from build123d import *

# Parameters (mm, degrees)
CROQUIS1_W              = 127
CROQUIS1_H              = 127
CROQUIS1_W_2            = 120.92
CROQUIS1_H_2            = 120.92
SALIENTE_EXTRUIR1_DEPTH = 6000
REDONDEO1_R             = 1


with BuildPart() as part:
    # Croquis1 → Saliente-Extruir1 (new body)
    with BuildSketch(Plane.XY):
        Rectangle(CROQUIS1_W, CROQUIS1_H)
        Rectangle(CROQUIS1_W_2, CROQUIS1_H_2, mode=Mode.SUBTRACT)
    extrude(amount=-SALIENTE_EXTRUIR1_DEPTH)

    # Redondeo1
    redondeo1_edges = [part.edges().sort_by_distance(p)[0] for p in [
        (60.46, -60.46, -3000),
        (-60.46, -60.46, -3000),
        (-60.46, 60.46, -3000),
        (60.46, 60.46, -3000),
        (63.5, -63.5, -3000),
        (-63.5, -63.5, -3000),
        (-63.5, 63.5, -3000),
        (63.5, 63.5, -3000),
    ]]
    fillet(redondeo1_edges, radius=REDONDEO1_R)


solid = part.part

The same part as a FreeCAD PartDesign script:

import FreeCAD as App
import Part
import Sketcher

V = App.Vector


def edges_at(feature, points):
    """Names of the edges that pass closest to the given points."""
    edges = feature.Shape.Edges
    near = lambda p: min(range(len(edges)), key=lambda i: edges[i].distToShape(Part.Vertex(*p))[0])
    return sorted({f"Edge{near(p) + 1}" for p in points})

doc = App.newDocument("Part")
body = doc.addObject("PartDesign::Body", "Body")

# Sketch on XY plane
sketch1 = body.newObject("Sketcher::SketchObject", "Sketch")
sketch1.AttachmentSupport = (doc.getObject("XY_Plane"), [""])
sketch1.MapMode = "FlatFace"
sketch1.addGeometry([
    Part.LineSegment(V(-64, 64, 0), V(-64, -64, 0)),  # 0
    Part.LineSegment(V(-64, -64, 0), V(64, -64, 0)),  # 1
    Part.LineSegment(V(64, -64, 0), V(64, 64, 0)),  # 2
    Part.LineSegment(V(64, 64, 0), V(-64, 64, 0)),  # 3
    Part.LineSegment(V(60, -60, 0), V(-60, -60, 0)),  # 4
    Part.LineSegment(V(-60, -60, 0), V(-60, 60, 0)),  # 5
    Part.LineSegment(V(-60, 60, 0), V(60, 60, 0)),  # 6
    Part.LineSegment(V(60, 60, 0), V(60, -60, 0)),  # 7
], False)
sketch1.addConstraint([
    Sketcher.Constraint("Coincident", 0, 2, 1, 1),
    Sketcher.Constraint("Coincident", 1, 2, 2, 1),
    Sketcher.Constraint("Coincident", 2, 2, 3, 1),
    Sketcher.Constraint("Coincident", 3, 2, 0, 1),
    Sketcher.Constraint("Coincident", 4, 2, 5, 1),
    Sketcher.Constraint("Coincident", 5, 2, 6, 1),
    Sketcher.Constraint("Coincident", 6, 2, 7, 1),
    Sketcher.Constraint("Coincident", 7, 2, 4, 1),
    Sketcher.Constraint("Vertical", 0),
    Sketcher.Constraint("Horizontal", 1),
    Sketcher.Constraint("Vertical", 2),
    Sketcher.Constraint("Horizontal", 3),
    Sketcher.Constraint("Horizontal", 4),
    Sketcher.Constraint("Vertical", 5),
    Sketcher.Constraint("Horizontal", 6),
    Sketcher.Constraint("Vertical", 7),
    Sketcher.Constraint("Symmetric", 0, 2, 2, 2, -1, 1),
    Sketcher.Constraint("Symmetric", 4, 2, 6, 2, -1, 1),
    Sketcher.Constraint("Equal", 3, 0),
    Sketcher.Constraint("Equal", 6, 5),
    Sketcher.Constraint("DistanceX", 1, 1, 1, 2, 127.0),
    Sketcher.Constraint("DistanceX", 4, 2, 4, 1, 120.92),
])
pad1 = body.newObject("PartDesign::Pad", "Pad")
pad1.Profile = sketch1
pad1.Length = 6000
pad1.Reversed = True
doc.recompute()

fillet = body.newObject("PartDesign::Fillet", "Fillet")
fillet.Base = (pad1, edges_at(pad1, [
    (60.46, -60.46, -3000),
    (-60.46, -60.46, -3000),
    (-60.46, 60.46, -3000),
    (60.46, 60.46, -3000),
    (63.5, -63.5, -3000),
    (-63.5, -63.5, -3000),
    (-63.5, 63.5, -3000),
    (63.5, 63.5, -3000),
]))
fillet.Radius = 1

doc.recompute()
